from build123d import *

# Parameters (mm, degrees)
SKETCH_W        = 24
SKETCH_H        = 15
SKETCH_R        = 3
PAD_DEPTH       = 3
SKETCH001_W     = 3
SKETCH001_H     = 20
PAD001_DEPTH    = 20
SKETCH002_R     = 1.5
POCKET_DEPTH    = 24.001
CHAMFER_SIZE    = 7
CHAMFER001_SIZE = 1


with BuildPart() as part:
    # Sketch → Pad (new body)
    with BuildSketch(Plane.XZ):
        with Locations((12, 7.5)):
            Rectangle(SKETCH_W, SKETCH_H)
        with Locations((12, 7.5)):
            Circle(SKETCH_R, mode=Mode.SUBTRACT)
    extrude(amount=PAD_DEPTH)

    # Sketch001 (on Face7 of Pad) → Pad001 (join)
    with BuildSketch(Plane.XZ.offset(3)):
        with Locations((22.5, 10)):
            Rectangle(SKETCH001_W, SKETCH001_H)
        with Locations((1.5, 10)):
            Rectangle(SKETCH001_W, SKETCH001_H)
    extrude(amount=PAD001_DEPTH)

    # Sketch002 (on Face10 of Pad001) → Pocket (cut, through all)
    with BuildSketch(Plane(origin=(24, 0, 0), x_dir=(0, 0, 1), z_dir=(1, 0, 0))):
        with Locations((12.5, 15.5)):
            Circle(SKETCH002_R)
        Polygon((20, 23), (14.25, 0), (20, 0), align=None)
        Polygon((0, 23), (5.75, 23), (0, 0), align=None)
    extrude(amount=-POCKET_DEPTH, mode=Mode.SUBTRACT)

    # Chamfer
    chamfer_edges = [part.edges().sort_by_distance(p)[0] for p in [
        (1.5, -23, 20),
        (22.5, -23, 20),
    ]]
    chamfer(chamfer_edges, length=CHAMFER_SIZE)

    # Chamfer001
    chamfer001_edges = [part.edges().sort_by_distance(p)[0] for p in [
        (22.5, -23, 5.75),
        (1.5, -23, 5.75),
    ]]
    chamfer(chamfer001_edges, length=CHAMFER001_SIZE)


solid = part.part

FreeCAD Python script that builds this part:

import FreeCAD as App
import Part
import Sketcher
Q = App.Units.Quantity


def edges_at(feature, points):
    """Names of the edges that pass closest to the given points."""
    edges = feature.Shape.Edges
    near = lambda p: min(range(len(edges)), key=lambda i: edges[i].distToShape(Part.Vertex(*p))[0])
    return sorted({f"Edge{near(p) + 1}" for p in points})

doc = App.newDocument("Part")
body = doc.addObject("PartDesign::Body", "Body")

sketch1 = doc.addObject("Sketcher::SketchObject", "Sketch")
body.addObject(sketch1)
sketch1.AttachmentSupport = (doc.XZ_Plane, [""])
sketch1.MapMode = "FlatFace"
sketch1.addGeometry(Part.LineSegment(App.Vector(0, 15, 0), App.Vector(0, 0, 0)), False)
sketch1.addGeometry(Part.LineSegment(App.Vector(0, 0, 0), App.Vector(24, 0, 0)), False)
sketch1.addGeometry(Part.LineSegment(App.Vector(24, 0, 0), App.Vector(24, 15, 0)), False)
sketch1.addGeometry(Part.LineSegment(App.Vector(24, 15, 0), App.Vector(0, 15, 0)), False)
sketch1.addGeometry(Part.Circle(App.Vector(12, 7.5, 0), App.Vector(0, 0, 1), 3), False)
sketch1.addConstraint(Sketcher.Constraint("Coincident", 0, 2, 1, 1))
sketch1.addConstraint(Sketcher.Constraint("Coincident", 1, 2, 2, 1))
sketch1.addConstraint(Sketcher.Constraint("Coincident", 2, 2, 3, 1))
sketch1.addConstraint(Sketcher.Constraint("Coincident", 3, 2, 0, 1))
sketch1.addConstraint(Sketcher.Constraint("Vertical", 0))
sketch1.addConstraint(Sketcher.Constraint("Horizontal", 1))
sketch1.addConstraint(Sketcher.Constraint("Vertical", 2))
sketch1.addConstraint(Sketcher.Constraint("Horizontal", 3))
sketch1.addConstraint(Sketcher.Constraint("Coincident", 0, 2, -1, 1))
sketch1.addConstraint(Sketcher.Constraint("Diameter", 4, Q("6 mm")))
sketch1.addConstraint(Sketcher.Constraint("DistanceX", 1, 1, 1, 2, Q("24 mm")))
sketch1.addConstraint(Sketcher.Constraint("DistanceY", 0, 2, 0, 1, Q("15 mm")))
sketch1.addConstraint(Sketcher.Constraint("DistanceX", -1, 1, 4, 3, Q("12 mm")))
sketch1.addConstraint(Sketcher.Constraint("DistanceY", -1, 1, 4, 3, Q("7.5 mm")))
pad1 = doc.addObject("PartDesign::Pad", "Pad")
body.addObject(pad1)
pad1.Profile = sketch1
pad1.Length = 3

sketch2 = doc.addObject("Sketcher::SketchObject", "Sketch001")
body.addObject(sketch2)
sketch2.AttachmentSupport = (doc.XZ_Plane, [""])
sketch2.MapMode = "FlatFace"
sketch2.AttachmentOffset = App.Placement(App.Vector(0, 0, 3), App.Rotation())
sketch2.addGeometry(Part.LineSegment(App.Vector(21, 20, 0), App.Vector(21, 0, 0)), False)
sketch2.addGeometry(Part.LineSegment(App.Vector(21, 0, 0), App.Vector(24, 0, 0)), False)
sketch2.addGeometry(Part.LineSegment(App.Vector(24, 0, 0), App.Vector(24, 20, 0)), False)
sketch2.addGeometry(Part.LineSegment(App.Vector(24, 20, 0), App.Vector(21, 20, 0)), False)
sketch2.addGeometry(Part.LineSegment(App.Vector(0, 20, 0), App.Vector(0, 0, 0)), False)
sketch2.addGeometry(Part.LineSegment(App.Vector(0, 0, 0), App.Vector(3, 0, 0)), False)
sketch2.addGeometry(Part.LineSegment(App.Vector(3, 0, 0), App.Vector(3, 20, 0)), False)
sketch2.addGeometry(Part.LineSegment(App.Vector(3, 20, 0), App.Vector(0, 20, 0)), False)
sketch2.addConstraint(Sketcher.Constraint("Coincident", 0, 2, 1, 1))
sketch2.addConstraint(Sketcher.Constraint("Coincident", 1, 2, 2, 1))
sketch2.addConstraint(Sketcher.Constraint("Coincident", 2, 2, 3, 1))
sketch2.addConstraint(Sketcher.Constraint("Coincident", 3, 2, 0, 1))
sketch2.addConstraint(Sketcher.Constraint("Coincident", 4, 2, 5, 1))
sketch2.addConstraint(Sketcher.Constraint("Coincident", 5, 2, 6, 1))
sketch2.addConstraint(Sketcher.Constraint("Coincident", 6, 2, 7, 1))
sketch2.addConstraint(Sketcher.Constraint("Coincident", 7, 2, 4, 1))
sketch2.addConstraint(Sketcher.Constraint("Vertical", 0))
sketch2.addConstraint(Sketcher.Constraint("Horizontal", 1))
sketch2.addConstraint(Sketcher.Constraint("Vertical", 2))
sketch2.addConstraint(Sketcher.Constraint("Horizontal", 3))
sketch2.addConstraint(Sketcher.Constraint("Vertical", 4))
sketch2.addConstraint(Sketcher.Constraint("Horizontal", 5))
sketch2.addConstraint(Sketcher.Constraint("Vertical", 6))
sketch2.addConstraint(Sketcher.Constraint("Horizontal", 7))
sketch2.addConstraint(Sketcher.Constraint("Coincident", 4, 2, -1, 1))
sketch2.addConstraint(Sketcher.Constraint("PointOnObject", 0, 2, -1))
sketch2.addConstraint(Sketcher.Constraint("Horizontal", 3, 2, 6, 2))
sketch2.addConstraint(Sketcher.Constraint("Equal", 3, 5))
sketch2.addConstraint(Sketcher.Constraint("DistanceX", 1, 1, 1, 2, Q("3 mm")))
sketch2.addConstraint(Sketcher.Constraint("DistanceY", 0, 2, 0, 1, Q("20 mm")))
sketch2.addConstraint(Sketcher.Constraint("DistanceX", -1, 1, 0, 2, Q("21 mm")))
pad2 = doc.addObject("PartDesign::Pad", "Pad001")
body.addObject(pad2)
pad2.Profile = sketch2
pad2.Length = 20

sketch3 = doc.addObject("Sketcher::SketchObject", "Sketch002")
body.addObject(sketch3)
sketch3.AttachmentSupport = (doc.YZ_Plane, [""])
sketch3.MapMode = "FlatFace"
sketch3.AttachmentOffset = App.Placement(App.Vector(0, 0, 24), App.Rotation())
sketch3.addGeometry(Part.Circle(App.Vector(-15.5, 12.5, 0), App.Vector(0, 0, 1), 1.5), False)
sketch3.addGeometry(Part.LineSegment(App.Vector(-23, 20, 0), App.Vector(0, 14.25, 0)), False)
sketch3.addGeometry(Part.LineSegment(App.Vector(0, 14.25, 0), App.Vector(0, 20, 0)), False)
sketch3.addGeometry(Part.LineSegment(App.Vector(0, 20, 0), App.Vector(-23, 20, 0)), False)
sketch3.addGeometry(Part.LineSegment(App.Vector(-23, 5.75, 0), App.Vector(-23, 0, 0)), False)
sketch3.addGeometry(Part.LineSegment(App.Vector(-23, 0, 0), App.Vector(0, 0, 0)), False)
sketch3.addGeometry(Part.LineSegment(App.Vector(0, 0, 0), App.Vector(-23, 5.75, 0)), False)
sketch3.addConstraint(Sketcher.Constraint("Coincident", 1, 2, 2, 1))
sketch3.addConstraint(Sketcher.Constraint("Coincident", 2, 2, 3, 1))
sketch3.addConstraint(Sketcher.Constraint("Coincident", 3, 2, 1, 1))
sketch3.addConstraint(Sketcher.Constraint("Coincident", 4, 2, 5, 1))
sketch3.addConstraint(Sketcher.Constraint("Coincident", 5, 2, 6, 1))
sketch3.addConstraint(Sketcher.Constraint("Coincident", 6, 2, 4, 1))
sketch3.addConstraint(Sketcher.Constraint("Vertical", 2))
sketch3.addConstraint(Sketcher.Constraint("Horizontal", 3))
sketch3.addConstraint(Sketcher.Constraint("Vertical", 4))
sketch3.addConstraint(Sketcher.Constraint("Horizontal", 5))
sketch3.addConstraint(Sketcher.Constraint("Coincident", 5, 2, -1, 1))
sketch3.addConstraint(Sketcher.Constraint("PointOnObject", 1, 2, -2))
sketch3.addConstraint(Sketcher.Constraint("Parallel", 1, 6))
sketch3.addConstraint(Sketcher.Constraint("Vertical", 3, 2, 4, 2))
sketch3.addConstraint(Sketcher.Constraint("Diameter", 0, Q("3 mm")))
sketch3.addConstraint(Sketcher.Constraint("DistanceX", 3, 2, 3, 1, Q("23 mm")))
sketch3.addConstraint(Sketcher.Constraint("DistanceY", -1, 1, 2, 2, Q("20 mm")))
sketch3.addConstraint(Sketcher.Constraint("DistanceY", 2, 1, 2, 2, Q("5.75 mm")))
sketch3.addConstraint(Sketcher.Constraint("DistanceX", 0, 3, -1, 1, Q("15.5 mm")))
sketch3.addConstraint(Sketcher.Constraint("DistanceY", -1, 1, 0, 3, Q("12.5 mm")))
pocket1 = doc.addObject("PartDesign::Pocket", "Pocket")
body.addObject(pocket1)
pocket1.Profile = sketch3
pocket1.Type = "ThroughAll"
doc.recompute()

chamfer = doc.addObject("PartDesign::Chamfer", "Chamfer")
body.addObject(chamfer)
chamfer.Base = (pocket1, edges_at(pocket1, [(1.5, -23, 20), (22.5, -23, 20)]))
chamfer.Size = 7
doc.recompute()

chamfer2 = doc.addObject("PartDesign::Chamfer", "Chamfer001")
body.addObject(chamfer2)
chamfer2.Base = (chamfer, edges_at(chamfer, [(22.5, -23, 5.75), (1.5, -23, 5.75)]))
chamfer2.Size = 1

doc.recompute()
